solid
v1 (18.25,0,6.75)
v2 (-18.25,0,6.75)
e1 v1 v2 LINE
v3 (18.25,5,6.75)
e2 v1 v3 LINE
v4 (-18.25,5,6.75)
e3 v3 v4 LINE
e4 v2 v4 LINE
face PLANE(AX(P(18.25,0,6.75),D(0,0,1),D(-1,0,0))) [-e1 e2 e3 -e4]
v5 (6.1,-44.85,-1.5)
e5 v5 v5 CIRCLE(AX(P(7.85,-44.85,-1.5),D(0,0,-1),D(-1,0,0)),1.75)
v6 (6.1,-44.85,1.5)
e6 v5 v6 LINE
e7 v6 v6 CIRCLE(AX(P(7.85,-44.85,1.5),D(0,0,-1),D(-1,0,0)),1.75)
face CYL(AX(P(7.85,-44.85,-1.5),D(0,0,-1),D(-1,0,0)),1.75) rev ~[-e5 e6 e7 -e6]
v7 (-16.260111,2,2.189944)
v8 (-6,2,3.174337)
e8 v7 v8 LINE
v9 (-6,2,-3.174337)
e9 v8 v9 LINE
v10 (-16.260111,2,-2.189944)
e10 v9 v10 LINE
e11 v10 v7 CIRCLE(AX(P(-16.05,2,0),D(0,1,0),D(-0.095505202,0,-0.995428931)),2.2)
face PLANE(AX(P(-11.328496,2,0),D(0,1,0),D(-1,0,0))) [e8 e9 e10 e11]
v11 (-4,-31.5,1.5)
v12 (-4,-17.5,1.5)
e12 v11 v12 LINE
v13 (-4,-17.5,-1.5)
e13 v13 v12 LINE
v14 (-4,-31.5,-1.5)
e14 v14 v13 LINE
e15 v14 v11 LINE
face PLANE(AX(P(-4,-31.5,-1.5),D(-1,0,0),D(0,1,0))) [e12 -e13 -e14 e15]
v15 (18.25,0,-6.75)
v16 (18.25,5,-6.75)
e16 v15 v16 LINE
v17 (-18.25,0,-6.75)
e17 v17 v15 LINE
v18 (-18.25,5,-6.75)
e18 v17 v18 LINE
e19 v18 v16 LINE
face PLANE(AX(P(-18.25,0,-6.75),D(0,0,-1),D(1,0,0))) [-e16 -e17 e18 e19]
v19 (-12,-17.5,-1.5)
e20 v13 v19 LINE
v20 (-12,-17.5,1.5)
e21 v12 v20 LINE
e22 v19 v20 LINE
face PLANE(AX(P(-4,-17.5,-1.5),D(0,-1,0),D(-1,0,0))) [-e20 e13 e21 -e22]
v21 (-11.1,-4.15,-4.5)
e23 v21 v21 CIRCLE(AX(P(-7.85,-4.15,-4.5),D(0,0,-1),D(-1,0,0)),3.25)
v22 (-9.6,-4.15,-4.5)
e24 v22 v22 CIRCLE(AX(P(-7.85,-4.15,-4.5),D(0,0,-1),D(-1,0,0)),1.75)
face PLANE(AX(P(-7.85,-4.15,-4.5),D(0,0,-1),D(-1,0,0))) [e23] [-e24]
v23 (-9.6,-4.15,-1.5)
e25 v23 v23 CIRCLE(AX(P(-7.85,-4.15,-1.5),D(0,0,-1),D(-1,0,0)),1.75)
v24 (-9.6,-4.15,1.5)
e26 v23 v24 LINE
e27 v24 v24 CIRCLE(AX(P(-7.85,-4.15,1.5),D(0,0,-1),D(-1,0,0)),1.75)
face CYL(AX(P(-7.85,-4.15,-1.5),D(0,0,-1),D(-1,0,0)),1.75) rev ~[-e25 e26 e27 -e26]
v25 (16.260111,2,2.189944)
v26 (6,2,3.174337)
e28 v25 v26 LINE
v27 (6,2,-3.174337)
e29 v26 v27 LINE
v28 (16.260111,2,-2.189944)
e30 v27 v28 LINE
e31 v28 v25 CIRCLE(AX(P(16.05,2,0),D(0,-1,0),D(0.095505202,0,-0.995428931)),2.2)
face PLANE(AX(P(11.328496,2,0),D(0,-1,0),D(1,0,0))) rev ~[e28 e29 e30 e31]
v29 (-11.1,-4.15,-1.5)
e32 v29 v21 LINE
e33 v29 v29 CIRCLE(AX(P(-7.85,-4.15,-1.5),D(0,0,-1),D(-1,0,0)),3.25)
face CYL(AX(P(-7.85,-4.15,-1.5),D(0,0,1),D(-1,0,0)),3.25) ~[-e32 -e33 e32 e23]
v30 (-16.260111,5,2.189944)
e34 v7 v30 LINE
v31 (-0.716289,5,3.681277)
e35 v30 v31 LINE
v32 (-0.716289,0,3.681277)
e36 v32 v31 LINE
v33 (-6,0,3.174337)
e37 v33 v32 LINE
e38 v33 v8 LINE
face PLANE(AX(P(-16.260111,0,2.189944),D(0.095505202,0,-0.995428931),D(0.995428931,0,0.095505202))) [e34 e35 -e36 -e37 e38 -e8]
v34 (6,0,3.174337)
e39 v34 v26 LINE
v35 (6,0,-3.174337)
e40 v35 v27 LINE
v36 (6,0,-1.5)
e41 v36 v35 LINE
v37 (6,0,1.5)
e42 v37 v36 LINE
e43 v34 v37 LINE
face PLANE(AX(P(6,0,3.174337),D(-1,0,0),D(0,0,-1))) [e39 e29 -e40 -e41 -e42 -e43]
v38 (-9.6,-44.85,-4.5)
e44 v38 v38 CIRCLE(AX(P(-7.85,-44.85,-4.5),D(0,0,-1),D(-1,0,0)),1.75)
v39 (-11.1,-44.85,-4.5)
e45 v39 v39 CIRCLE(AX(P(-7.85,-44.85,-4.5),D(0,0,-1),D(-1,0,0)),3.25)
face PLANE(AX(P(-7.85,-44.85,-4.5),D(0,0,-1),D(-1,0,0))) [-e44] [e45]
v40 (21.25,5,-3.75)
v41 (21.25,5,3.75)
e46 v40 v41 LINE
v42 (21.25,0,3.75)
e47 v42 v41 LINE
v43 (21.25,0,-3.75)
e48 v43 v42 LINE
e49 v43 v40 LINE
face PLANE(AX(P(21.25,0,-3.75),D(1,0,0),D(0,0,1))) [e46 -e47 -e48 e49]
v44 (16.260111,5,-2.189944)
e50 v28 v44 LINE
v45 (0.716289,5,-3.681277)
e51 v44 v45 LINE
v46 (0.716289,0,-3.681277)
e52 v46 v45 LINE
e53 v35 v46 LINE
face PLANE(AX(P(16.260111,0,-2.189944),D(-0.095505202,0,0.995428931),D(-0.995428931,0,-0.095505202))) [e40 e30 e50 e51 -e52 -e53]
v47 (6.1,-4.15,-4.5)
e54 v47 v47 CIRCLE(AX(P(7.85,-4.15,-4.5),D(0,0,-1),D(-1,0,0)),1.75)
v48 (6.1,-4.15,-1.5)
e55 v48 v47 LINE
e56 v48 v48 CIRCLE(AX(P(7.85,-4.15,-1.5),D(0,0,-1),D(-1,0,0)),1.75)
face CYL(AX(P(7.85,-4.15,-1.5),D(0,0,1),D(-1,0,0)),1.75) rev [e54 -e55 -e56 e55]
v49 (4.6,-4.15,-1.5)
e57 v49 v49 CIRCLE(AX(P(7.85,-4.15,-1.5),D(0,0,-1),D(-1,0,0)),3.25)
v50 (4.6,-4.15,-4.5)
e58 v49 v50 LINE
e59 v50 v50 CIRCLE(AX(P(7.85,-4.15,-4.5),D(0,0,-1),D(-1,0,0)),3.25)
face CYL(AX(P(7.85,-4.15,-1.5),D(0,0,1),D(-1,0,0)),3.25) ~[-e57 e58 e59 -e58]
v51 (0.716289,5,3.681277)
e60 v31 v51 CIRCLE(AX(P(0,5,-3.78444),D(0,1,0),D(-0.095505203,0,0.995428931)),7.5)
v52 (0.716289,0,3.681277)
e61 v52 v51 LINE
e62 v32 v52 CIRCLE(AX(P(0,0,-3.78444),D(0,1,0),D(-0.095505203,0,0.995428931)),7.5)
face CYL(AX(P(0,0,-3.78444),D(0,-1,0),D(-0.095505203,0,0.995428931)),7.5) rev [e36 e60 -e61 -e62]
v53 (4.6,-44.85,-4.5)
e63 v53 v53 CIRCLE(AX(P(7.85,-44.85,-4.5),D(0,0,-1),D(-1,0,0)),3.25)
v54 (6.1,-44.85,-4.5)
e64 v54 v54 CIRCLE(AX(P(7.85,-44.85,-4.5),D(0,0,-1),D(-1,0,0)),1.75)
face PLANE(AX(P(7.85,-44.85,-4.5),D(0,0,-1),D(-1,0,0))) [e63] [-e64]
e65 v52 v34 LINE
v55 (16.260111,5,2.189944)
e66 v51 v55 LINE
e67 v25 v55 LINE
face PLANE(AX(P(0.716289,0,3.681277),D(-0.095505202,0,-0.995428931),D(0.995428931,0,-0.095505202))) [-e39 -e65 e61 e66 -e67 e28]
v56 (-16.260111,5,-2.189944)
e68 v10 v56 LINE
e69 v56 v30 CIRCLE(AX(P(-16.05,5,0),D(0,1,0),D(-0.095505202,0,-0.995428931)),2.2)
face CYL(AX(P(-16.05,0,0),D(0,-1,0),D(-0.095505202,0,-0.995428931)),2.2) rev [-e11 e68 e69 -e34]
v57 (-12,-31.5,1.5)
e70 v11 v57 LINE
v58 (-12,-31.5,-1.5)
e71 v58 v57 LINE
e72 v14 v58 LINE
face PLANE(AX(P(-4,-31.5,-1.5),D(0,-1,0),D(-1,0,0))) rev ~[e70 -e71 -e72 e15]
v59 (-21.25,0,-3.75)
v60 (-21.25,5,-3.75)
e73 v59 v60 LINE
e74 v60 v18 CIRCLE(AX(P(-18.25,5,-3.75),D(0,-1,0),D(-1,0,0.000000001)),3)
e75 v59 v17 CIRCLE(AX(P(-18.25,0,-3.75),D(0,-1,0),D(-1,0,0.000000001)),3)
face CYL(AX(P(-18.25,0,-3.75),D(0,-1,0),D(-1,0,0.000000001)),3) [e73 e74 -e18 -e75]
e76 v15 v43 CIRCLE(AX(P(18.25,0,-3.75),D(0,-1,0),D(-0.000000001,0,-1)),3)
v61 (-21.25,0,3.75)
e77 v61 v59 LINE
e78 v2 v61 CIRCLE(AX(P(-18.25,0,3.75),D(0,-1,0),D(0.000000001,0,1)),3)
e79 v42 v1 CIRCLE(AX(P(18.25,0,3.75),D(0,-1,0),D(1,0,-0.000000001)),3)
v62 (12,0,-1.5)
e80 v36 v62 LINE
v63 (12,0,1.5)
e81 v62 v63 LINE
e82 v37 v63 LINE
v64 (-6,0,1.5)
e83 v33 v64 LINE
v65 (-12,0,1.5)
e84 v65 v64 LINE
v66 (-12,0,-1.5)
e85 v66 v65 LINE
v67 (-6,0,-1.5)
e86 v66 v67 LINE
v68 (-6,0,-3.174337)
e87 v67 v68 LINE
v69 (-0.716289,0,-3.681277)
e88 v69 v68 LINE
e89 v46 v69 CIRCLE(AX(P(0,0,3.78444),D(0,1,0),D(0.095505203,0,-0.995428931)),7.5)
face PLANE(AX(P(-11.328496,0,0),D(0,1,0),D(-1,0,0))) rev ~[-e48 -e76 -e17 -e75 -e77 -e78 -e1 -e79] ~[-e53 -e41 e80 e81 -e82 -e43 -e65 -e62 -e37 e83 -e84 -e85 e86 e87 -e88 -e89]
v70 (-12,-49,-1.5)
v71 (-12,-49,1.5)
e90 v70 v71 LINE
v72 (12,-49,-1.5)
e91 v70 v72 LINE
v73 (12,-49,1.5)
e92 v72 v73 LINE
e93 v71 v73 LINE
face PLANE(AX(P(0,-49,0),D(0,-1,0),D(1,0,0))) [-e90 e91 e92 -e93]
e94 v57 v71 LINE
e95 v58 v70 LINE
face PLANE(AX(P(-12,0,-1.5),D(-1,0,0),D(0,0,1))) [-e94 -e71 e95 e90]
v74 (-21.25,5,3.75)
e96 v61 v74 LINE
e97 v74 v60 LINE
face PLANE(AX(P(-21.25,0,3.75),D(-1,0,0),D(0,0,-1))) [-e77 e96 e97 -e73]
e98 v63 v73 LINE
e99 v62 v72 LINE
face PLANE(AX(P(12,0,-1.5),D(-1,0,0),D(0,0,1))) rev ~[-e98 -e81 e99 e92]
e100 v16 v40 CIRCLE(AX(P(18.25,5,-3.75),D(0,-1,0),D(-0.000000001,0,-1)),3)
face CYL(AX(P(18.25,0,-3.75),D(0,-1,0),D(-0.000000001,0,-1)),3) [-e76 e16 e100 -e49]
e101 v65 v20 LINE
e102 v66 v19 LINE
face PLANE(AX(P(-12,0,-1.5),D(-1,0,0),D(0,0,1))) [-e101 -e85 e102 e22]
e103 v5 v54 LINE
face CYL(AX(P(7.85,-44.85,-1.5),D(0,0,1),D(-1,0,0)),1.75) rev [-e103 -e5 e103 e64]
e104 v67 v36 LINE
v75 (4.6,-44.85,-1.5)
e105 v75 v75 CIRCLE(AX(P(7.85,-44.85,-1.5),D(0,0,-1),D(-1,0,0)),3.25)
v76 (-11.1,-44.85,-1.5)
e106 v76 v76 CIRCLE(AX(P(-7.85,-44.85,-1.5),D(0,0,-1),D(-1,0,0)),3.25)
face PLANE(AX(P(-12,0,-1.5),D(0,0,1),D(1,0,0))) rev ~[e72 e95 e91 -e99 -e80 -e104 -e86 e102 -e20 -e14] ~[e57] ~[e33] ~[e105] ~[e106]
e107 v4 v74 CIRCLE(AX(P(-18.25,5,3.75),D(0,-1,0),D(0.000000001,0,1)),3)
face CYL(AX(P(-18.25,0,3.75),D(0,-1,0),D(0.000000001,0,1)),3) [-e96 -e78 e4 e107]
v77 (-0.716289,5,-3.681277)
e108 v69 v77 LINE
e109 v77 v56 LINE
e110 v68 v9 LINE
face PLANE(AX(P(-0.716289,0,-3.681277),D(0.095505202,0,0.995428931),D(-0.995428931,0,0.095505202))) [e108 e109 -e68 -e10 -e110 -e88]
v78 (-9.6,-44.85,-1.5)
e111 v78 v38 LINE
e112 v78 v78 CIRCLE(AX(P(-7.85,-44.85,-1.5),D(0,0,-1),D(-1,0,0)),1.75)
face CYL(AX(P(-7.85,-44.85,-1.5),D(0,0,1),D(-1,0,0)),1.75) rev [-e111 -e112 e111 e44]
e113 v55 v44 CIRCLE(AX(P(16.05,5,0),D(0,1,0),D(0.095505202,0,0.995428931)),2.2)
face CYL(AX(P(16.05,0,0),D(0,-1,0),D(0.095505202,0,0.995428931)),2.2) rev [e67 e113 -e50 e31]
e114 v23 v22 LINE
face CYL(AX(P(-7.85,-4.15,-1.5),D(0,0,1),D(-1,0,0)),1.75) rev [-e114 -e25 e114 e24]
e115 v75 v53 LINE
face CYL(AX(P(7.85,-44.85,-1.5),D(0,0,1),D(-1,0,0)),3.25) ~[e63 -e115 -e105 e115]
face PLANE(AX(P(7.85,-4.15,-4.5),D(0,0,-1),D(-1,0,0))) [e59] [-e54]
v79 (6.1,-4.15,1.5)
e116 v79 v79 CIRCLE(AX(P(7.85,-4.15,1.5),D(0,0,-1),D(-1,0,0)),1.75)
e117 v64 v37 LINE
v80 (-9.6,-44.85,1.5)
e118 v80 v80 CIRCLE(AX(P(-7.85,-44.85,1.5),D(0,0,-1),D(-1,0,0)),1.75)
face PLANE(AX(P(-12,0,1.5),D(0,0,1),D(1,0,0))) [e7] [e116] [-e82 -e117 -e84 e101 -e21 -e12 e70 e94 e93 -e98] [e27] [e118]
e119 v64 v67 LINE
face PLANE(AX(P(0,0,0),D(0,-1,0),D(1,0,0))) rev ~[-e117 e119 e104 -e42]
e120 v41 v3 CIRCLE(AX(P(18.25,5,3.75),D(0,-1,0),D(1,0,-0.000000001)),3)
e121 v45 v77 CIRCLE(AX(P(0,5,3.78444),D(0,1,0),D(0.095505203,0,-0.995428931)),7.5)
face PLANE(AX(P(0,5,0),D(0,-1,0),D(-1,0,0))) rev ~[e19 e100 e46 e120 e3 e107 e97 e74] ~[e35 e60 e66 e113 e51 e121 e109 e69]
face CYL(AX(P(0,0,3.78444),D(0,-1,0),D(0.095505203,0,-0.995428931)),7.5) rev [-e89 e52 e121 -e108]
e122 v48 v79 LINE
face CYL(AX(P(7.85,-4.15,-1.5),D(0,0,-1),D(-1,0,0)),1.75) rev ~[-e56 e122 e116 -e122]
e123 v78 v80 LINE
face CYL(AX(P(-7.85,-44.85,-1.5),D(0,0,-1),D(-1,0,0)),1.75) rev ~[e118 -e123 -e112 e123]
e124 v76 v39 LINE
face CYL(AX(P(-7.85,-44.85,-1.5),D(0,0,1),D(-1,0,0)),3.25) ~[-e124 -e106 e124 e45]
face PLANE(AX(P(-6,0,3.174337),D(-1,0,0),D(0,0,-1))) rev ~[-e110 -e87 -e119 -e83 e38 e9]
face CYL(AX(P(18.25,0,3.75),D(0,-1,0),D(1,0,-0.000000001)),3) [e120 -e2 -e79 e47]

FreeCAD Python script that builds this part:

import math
import FreeCAD as App
import Part
import Sketcher

V = App.Vector


def add_polygon(sketch, points):
    """Adds a closed chain of lines whose ends are joined by coincident constraints."""
    first, n = sketch.GeometryCount, len(points)
    for a, b in zip(points, points[1:] + points[:1]):
        sketch.addGeometry(Part.LineSegment(App.Vector(*a, 0), App.Vector(*b, 0)), False)
    for i in range(n):
        sketch.addConstraint(Sketcher.Constraint("Coincident", first + i, 2, first + (i + 1) % n, 1))

doc = App.newDocument("Part")
body = doc.addObject("PartDesign::Body", "Body")

# Sketch on XZ plane
sketch1 = body.newObject("Sketcher::SketchObject", "Sketch")
sketch1.AttachmentSupport = (doc.getObject("XZ_Plane"), [""])
sketch1.MapMode = "FlatFace"
sketch1.addGeometry([
    Part.LineSegment(V(18.25, -6.75, 0), V(-18.25, -6.75, 0)),  # 0
    Part.ArcOfCircle(Part.Circle(V(-18.25, -3.75, 0), V(0, 0, 1), 3), math.radians(180), math.radians(270)),  # 1
    Part.LineSegment(V(-21.25, -3.75, 0), V(-21.25, 3.75, 0)),  # 2
    Part.ArcOfCircle(Part.Circle(V(-18.25, 3.75, 0), V(0, 0, 1), 3), math.radians(90), math.radians(180)),  # 3
    Part.LineSegment(V(-18.25, 6.75, 0), V(18.25, 6.75, 0)),  # 4
    Part.ArcOfCircle(Part.Circle(V(18.25, 3.75, 0), V(0, 0, 1), 3), math.radians(0), math.radians(90)),  # 5
    Part.LineSegment(V(21.25, 3.75, 0), V(21.25, -3.75, 0)),  # 6
    Part.ArcOfCircle(Part.Circle(V(18.25, -3.75, 0), V(0, 0, 1), 3), math.radians(-90), math.radians(0)),  # 7
    Part.ArcOfCircle(Part.Circle(V(16.05, 0, 0), V(0, 0, 1), 2.2), math.radians(-84.519602), math.radians(84.519602)),  # 8
    Part.LineSegment(V(16.260111, 2.189944, 0), V(0.716289, 3.681277, 0)),  # 9
    Part.ArcOfCircle(Part.Circle(V(0, -3.78444, 0), V(0, 0, 1), 7.5), math.radians(84.519602), math.radians(95.480398)),  # 10
    Part.LineSegment(V(-0.716289, 3.681277, 0), V(-16.260111, 2.189944, 0)),  # 11
    Part.ArcOfCircle(Part.Circle(V(-16.05, 0, 0), V(0, 0, 1), 2.2), math.radians(95.480398), math.radians(264.519602)),  # 12
    Part.LineSegment(V(-16.260111, -2.189944, 0), V(-0.716289, -3.681277, 0)),  # 13
    Part.ArcOfCircle(Part.Circle(V(0, 3.78444, 0), V(0, 0, 1), 7.5), math.radians(-95.480398), math.radians(-84.519602)),  # 14
    Part.LineSegment(V(0.716289, -3.681277, 0), V(16.260111, -2.189944, 0)),  # 15
], False)
sketch1.addConstraint([
    Sketcher.Constraint("Tangent", 0, 2, 1, 2),
    Sketcher.Constraint("Tangent", 1, 1, 2, 1),
    Sketcher.Constraint("Tangent", 2, 2, 3, 2),
    Sketcher.Constraint("Tangent", 3, 1, 4, 1),
    Sketcher.Constraint("Tangent", 4, 2, 5, 2),
    Sketcher.Constraint("Tangent", 5, 1, 6, 1),
    Sketcher.Constraint("Tangent", 6, 2, 7, 2),
    Sketcher.Constraint("Tangent", 7, 1, 0, 1),
    Sketcher.Constraint("Tangent", 8, 2, 9, 1),
    Sketcher.Constraint("Tangent", 9, 2, 10, 1),
    Sketcher.Constraint("Tangent", 10, 2, 11, 1),
    Sketcher.Constraint("Tangent", 11, 2, 12, 1),
    Sketcher.Constraint("Tangent", 12, 2, 13, 1),
    Sketcher.Constraint("Tangent", 13, 2, 14, 1),
    Sketcher.Constraint("Tangent", 14, 2, 15, 1),
    Sketcher.Constraint("Tangent", 15, 2, 8, 1),
    Sketcher.Constraint("Horizontal", 0),
    Sketcher.Constraint("Vertical", 2),
    Sketcher.Constraint("Horizontal", 4),
    Sketcher.Constraint("Vertical", 6),
    Sketcher.Constraint("Equal", 1, 3),
    Sketcher.Constraint("Equal", 3, 5),
    Sketcher.Constraint("Equal", 5, 7),
    Sketcher.Constraint("Equal", 8, 12),
    Sketcher.Constraint("Equal", 10, 14),
    Sketcher.Constraint("Symmetric", 1, 3, 5, 3, -1, 1),
    Sketcher.Constraint("Symmetric", 8, 3, 12, 3, -1, 1),
    Sketcher.Constraint("Symmetric", 10, 3, 14, 3, -1, 1),
    Sketcher.Constraint("Symmetric", 9, 2, 10, 2, -2),
    Sketcher.Constraint("Radius", 1, 3.0),
    Sketcher.Constraint("Radius", 8, 2.2),
    Sketcher.Constraint("Radius", 10, 7.5),
    Sketcher.Constraint("DistanceX", 0, 2, 0, 1, 36.5),
    Sketcher.Constraint("DistanceY", 2, 1, 2, 2, 7.5),
    Sketcher.Constraint("DistanceX", 8, 3, 5, 3, 2.2),
    Sketcher.Constraint("Distance", 9, 15.615201),
])
pad1 = body.newObject("PartDesign::Pad", "Pad")
pad1.Profile = sketch1
pad1.Length = 5
pad1.Reversed = True

# Sketch on XZ plane
sketch2 = body.newObject("Sketcher::SketchObject", "Sketch001")
sketch2.AttachmentSupport = (doc.getObject("XZ_Plane"), [""])
sketch2.MapMode = "FlatFace"
sketch2.addGeometry([
    Part.LineSegment(V(-6, 3.174337, 0), V(-16.260111, 2.189944, 0)),  # 0
    Part.ArcOfCircle(Part.Circle(V(-16.05, 0, 0), V(0, 0, 1), 2.2), math.radians(95.480398), math.radians(264.519602)),  # 1
    Part.LineSegment(V(-16.260111, -2.189944, 0), V(-6, -3.174337, 0)),  # 2
    Part.LineSegment(V(-6, -3.174337, 0), V(-6, 3.174337, 0)),  # 3
    Part.LineSegment(V(6, -3.174337, 0), V(16.260111, -2.189944, 0)),  # 4
    Part.ArcOfCircle(Part.Circle(V(16.05, 0, 0), V(0, 0, 1), 2.2), math.radians(-84.519602), math.radians(84.519602)),  # 5
    Part.LineSegment(V(16.260111, 2.189944, 0), V(6, 3.174337, 0)),  # 6
    Part.LineSegment(V(6, 3.174337, 0), V(6, -3.174337, 0)),  # 7
], False)
sketch2.addConstraint([
    Sketcher.Constraint("Tangent", 0, 2, 1, 1),
    Sketcher.Constraint("Tangent", 1, 2, 2, 1),
    Sketcher.Constraint("Coincident", 2, 2, 3, 1),
    Sketcher.Constraint("Coincident", 3, 2, 0, 1),
    Sketcher.Constraint("Tangent", 4, 2, 5, 1),
    Sketcher.Constraint("Tangent", 5, 2, 6, 1),
    Sketcher.Constraint("Coincident", 6, 2, 7, 1),
    Sketcher.Constraint("Coincident", 7, 2, 4, 1),
    Sketcher.Constraint("Vertical", 3),
    Sketcher.Constraint("Vertical", 7),
    Sketcher.Constraint("Equal", 1, 5),
    Sketcher.Constraint("Symmetric", 1, 3, 5, 3, -1, 1),
    Sketcher.Constraint("Symmetric", 2, 2, 6, 2, -1, 1),
    Sketcher.Constraint("Symmetric", 1, 2, 4, 2, -2),
    Sketcher.Constraint("Parallel", 0, 4),
    Sketcher.Constraint("Radius", 1, 2.2),
    Sketcher.Constraint("DistanceX", 2, 2, -1, 1, 6.0),
    Sketcher.Constraint("DistanceX", 1, 3, 5, 3, 32.1),
    Sketcher.Constraint("DistanceY", 3, 1, 3, 2, 6.348675),
])
pad2 = body.newObject("PartDesign::Pad", "Pad001")
pad2.Profile = sketch2
pad2.Length = 2
pad2.Reversed = True

# Sketch on XZ plane
sketch3 = body.newObject("Sketcher::SketchObject", "Sketch002")
sketch3.AttachmentSupport = (doc.getObject("XZ_Plane"), [""])
sketch3.MapMode = "FlatFace"
add_polygon(sketch3, [(-12, 1.5), (-12, -1.5), (12, -1.5), (12, 1.5)])  # lines 0-3
sketch3.addConstraint([
    Sketcher.Constraint("Vertical", 0),
    Sketcher.Constraint("Horizontal", 1),
    Sketcher.Constraint("Vertical", 2),
    Sketcher.Constraint("Horizontal", 3),
    Sketcher.Constraint("Symmetric", 0, 2, 2, 2, -1, 1),
    Sketcher.Constraint("DistanceX", 1, 1, 1, 2, 24.0),
    Sketcher.Constraint("DistanceY", 0, 2, 0, 1, 3.0),
])
pad3 = body.newObject("PartDesign::Pad", "Pad002")
pad3.Profile = sketch3
pad3.Length = 49

# Sketch on XY plane
sketch4 = body.newObject("Sketcher::SketchObject", "Sketch003")
sketch4.AttachmentSupport = (doc.getObject("XY_Plane"), [""])
sketch4.MapMode = "FlatFace"
sketch4.AttachmentOffset = App.Placement(V(0, 0, -1.5), App.Rotation())
sketch4.addGeometry(Part.Circle(V(-7.85, -44.85, 0), V(0, 0, 1), 1.75), False)
sketch4.addConstraint([
    Sketcher.Constraint("Diameter", 0, 3.5),
    Sketcher.Constraint("DistanceX", 0, 3, -1, 1, 7.85),
    Sketcher.Constraint("DistanceY", 0, 3, -1, 1, 44.85),
])
pocket1 = body.newObject("PartDesign::Pocket", "Pocket")
pocket1.Profile = sketch4
pocket1.Type = "UpToFirst"
pocket1.Reversed = True

# Sketch on XY plane
sketch5 = body.newObject("Sketcher::SketchObject", "Sketch004")
sketch5.AttachmentSupport = (doc.getObject("XY_Plane"), [""])
sketch5.MapMode = "FlatFace"
sketch5.AttachmentOffset = App.Placement(V(0, 0, -1.5), App.Rotation())
sketch5.addGeometry(Part.Circle(V(7.85, -44.85, 0), V(0, 0, 1), 1.75), False)
sketch5.addConstraint([
    Sketcher.Constraint("Diameter", 0, 3.5),
    Sketcher.Constraint("DistanceX", -1, 1, 0, 3, 7.85),
    Sketcher.Constraint("DistanceY", 0, 3, -1, 1, 44.85),
])
pocket2 = body.newObject("PartDesign::Pocket", "Pocket001")
pocket2.Profile = sketch5
pocket2.Type = "UpToFirst"
pocket2.Reversed = True

# Sketch on XY plane
sketch6 = body.newObject("Sketcher::SketchObject", "Sketch005")
sketch6.AttachmentSupport = (doc.getObject("XY_Plane"), [""])
sketch6.MapMode = "FlatFace"
sketch6.AttachmentOffset = App.Placement(V(0, 0, -1.5), App.Rotation())
sketch6.addGeometry(Part.Circle(V(7.85, -4.15, 0), V(0, 0, 1), 1.75), False)
sketch6.addConstraint([
    Sketcher.Constraint("Diameter", 0, 3.5),
    Sketcher.Constraint("DistanceX", -1, 1, 0, 3, 7.85),
    Sketcher.Constraint("DistanceY", 0, 3, -1, 1, 4.15),
])
pocket3 = body.newObject("PartDesign::Pocket", "Pocket002")
pocket3.Profile = sketch6
pocket3.Type = "UpToFirst"
pocket3.Reversed = True

# Sketch on XY plane
sketch7 = body.newObject("Sketcher::SketchObject", "Sketch006")
sketch7.AttachmentSupport = (doc.getObject("XY_Plane"), [""])
sketch7.MapMode = "FlatFace"
sketch7.AttachmentOffset = App.Placement(V(0, 0, -1.5), App.Rotation())
sketch7.addGeometry(Part.Circle(V(-7.85, -4.15, 0), V(0, 0, 1), 1.75), False)
sketch7.addConstraint([
    Sketcher.Constraint("Diameter", 0, 3.5),
    Sketcher.Constraint("DistanceX", 0, 3, -1, 1, 7.85),
    Sketcher.Constraint("DistanceY", 0, 3, -1, 1, 4.15),
])
pocket4 = body.newObject("PartDesign::Pocket", "Pocket003")
pocket4.Profile = sketch7
pocket4.Type = "UpToFirst"
pocket4.Reversed = True

# Sketch on XY plane
sketch8 = body.newObject("Sketcher::SketchObject", "Sketch007")
sketch8.AttachmentSupport = (doc.getObject("XY_Plane"), [""])
sketch8.MapMode = "FlatFace"
sketch8.AttachmentOffset = App.Placement(V(0, 0, -1.5), App.Rotation())
add_polygon(sketch8, [(-4, -17.5), (-4, -31.5), (-12, -31.5), (-12, -17.5)])  # lines 0-3
sketch8.addConstraint([
    Sketcher.Constraint("Vertical", 0),
    Sketcher.Constraint("Horizontal", 1),
    Sketcher.Constraint("Vertical", 2),
    Sketcher.Constraint("Horizontal", 3),
    Sketcher.Constraint("DistanceX", 1, 2, 1, 1, 8.0),
    Sketcher.Constraint("DistanceY", 0, 2, 0, 1, 14.0),
    Sketcher.Constraint("DistanceX", 0, 2, -1, 1, 4.0),
    Sketcher.Constraint("DistanceY", 0, 2, -1, 1, 31.5),
])
pocket5 = body.newObject("PartDesign::Pocket", "Pocket004")
pocket5.Profile = sketch8
pocket5.Type = "UpToFirst"
pocket5.Reversed = True

# Sketch on XY plane
sketch9 = body.newObject("Sketcher::SketchObject", "Sketch008")
sketch9.AttachmentSupport = (doc.getObject("XY_Plane"), [""])
sketch9.MapMode = "FlatFace"
sketch9.AttachmentOffset = App.Placement(V(0, 0, -1.5), App.Rotation())
sketch9.addGeometry([
    Part.Circle(V(7.85, -4.15, 0), V(0, 0, 1), 3.25),  # 0
    Part.Circle(V(7.85, -4.15, 0), V(0, 0, 1), 1.75),  # 1
    Part.Circle(V(-7.85, -4.15, 0), V(0, 0, 1), 3.25),  # 2
    Part.Circle(V(-7.85, -4.15, 0), V(0, 0, 1), 1.75),  # 3
    Part.Circle(V(-7.85, -44.85, 0), V(0, 0, 1), 3.25),  # 4
    Part.Circle(V(-7.85, -44.85, 0), V(0, 0, 1), 1.75),  # 5
    Part.Circle(V(7.85, -44.85, 0), V(0, 0, 1), 3.25),  # 6
    Part.Circle(V(7.85, -44.85, 0), V(0, 0, 1), 1.75),  # 7
], False)
sketch9.addConstraint([
    Sketcher.Constraint("Coincident", 1, 3, 0, 3),
    Sketcher.Constraint("Coincident", 3, 3, 2, 3),
    Sketcher.Constraint("Coincident", 5, 3, 4, 3),
    Sketcher.Constraint("Coincident", 7, 3, 6, 3),
    Sketcher.Constraint("Equal", 0, 2),
    Sketcher.Constraint("Equal", 1, 3),
    Sketcher.Constraint("Equal", 2, 4),
    Sketcher.Constraint("Equal", 3, 5),
    Sketcher.Constraint("Equal", 4, 6),
    Sketcher.Constraint("Equal", 5, 7),
    Sketcher.Constraint("Symmetric", 0, 3, 2, 3, -2),
    Sketcher.Constraint("Symmetric", 4, 3, 6, 3, -2),
    Sketcher.Constraint("Vertical", 3, 3, 4, 3),
    Sketcher.Constraint("Diameter", 0, 6.5),
    Sketcher.Constraint("Diameter", 1, 3.5),
    Sketcher.Constraint("DistanceX", 2, 3, 0, 3, 15.7),
    Sketcher.Constraint("DistanceY", 4, 3, 2, 3, 40.7),
    Sketcher.Constraint("DistanceY", 0, 3, -1, 1, 4.15),
])
pad4 = body.newObject("PartDesign::Pad", "Pad003")
pad4.Profile = sketch9
pad4.Length = 3
pad4.Reversed = True

doc.recompute()
